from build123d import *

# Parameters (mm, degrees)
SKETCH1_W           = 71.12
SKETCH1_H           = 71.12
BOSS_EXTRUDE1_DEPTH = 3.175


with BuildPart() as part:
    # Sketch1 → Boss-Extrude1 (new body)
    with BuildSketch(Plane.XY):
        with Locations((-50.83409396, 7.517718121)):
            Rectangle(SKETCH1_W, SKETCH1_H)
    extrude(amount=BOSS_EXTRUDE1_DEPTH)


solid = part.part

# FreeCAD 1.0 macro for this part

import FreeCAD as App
import Part
import Sketcher
Q = App.Units.Quantity


def add_polygon(sketch, points):
    """Adds a closed chain of lines whose ends are joined by coincident constraints."""
    first, n = sketch.GeometryCount, len(points)
    for a, b in zip(points, points[1:] + points[:1]):
        sketch.addGeometry(Part.LineSegment(App.Vector(*a, 0), App.Vector(*b, 0)), False)
    for i in range(n):
        sketch.addConstraint(Sketcher.Constraint("Coincident", first + i, 2, first + (i + 1) % n, 1))

doc = App.newDocument("Part")
body = doc.addObject("PartDesign::Body", "Body")

# Sketch on XY plane
sketch1 = body.newObject("Sketcher::SketchObject", "Sketch")
sketch1.AttachmentSupport = (doc.getObject("XY_Plane"), [""])
sketch1.MapMode = "FlatFace"
add_polygon(sketch1, [(-86.394094, 43.077718), (-86.394094, -28.042282), (-15.274094, -28.042282), (-15.274094, 43.077718)])  # lines 0-3
sketch1.addConstraint([
    Sketcher.Constraint("Vertical", 0),
    Sketcher.Constraint("Horizontal", 1),
    Sketcher.Constraint("Vertical", 2),
    Sketcher.Constraint("Horizontal", 3),
    Sketcher.Constraint("Equal", 3, 0),
    Sketcher.Constraint("DistanceX", 1, 1, 1, 2, Q("2.8 in")),
    Sketcher.Constraint("DistanceY", 0, 2, -1, 1, Q("28.042282 mm")),
    Sketcher.Constraint("DistanceX", 0, 2, -1, 1, Q("86.394094 mm")),
])
pad1 = body.newObject("PartDesign::Pad", "Pad")
pad1.Profile = sketch1
pad1.Length = Q("0.125 in")

doc.recompute()
